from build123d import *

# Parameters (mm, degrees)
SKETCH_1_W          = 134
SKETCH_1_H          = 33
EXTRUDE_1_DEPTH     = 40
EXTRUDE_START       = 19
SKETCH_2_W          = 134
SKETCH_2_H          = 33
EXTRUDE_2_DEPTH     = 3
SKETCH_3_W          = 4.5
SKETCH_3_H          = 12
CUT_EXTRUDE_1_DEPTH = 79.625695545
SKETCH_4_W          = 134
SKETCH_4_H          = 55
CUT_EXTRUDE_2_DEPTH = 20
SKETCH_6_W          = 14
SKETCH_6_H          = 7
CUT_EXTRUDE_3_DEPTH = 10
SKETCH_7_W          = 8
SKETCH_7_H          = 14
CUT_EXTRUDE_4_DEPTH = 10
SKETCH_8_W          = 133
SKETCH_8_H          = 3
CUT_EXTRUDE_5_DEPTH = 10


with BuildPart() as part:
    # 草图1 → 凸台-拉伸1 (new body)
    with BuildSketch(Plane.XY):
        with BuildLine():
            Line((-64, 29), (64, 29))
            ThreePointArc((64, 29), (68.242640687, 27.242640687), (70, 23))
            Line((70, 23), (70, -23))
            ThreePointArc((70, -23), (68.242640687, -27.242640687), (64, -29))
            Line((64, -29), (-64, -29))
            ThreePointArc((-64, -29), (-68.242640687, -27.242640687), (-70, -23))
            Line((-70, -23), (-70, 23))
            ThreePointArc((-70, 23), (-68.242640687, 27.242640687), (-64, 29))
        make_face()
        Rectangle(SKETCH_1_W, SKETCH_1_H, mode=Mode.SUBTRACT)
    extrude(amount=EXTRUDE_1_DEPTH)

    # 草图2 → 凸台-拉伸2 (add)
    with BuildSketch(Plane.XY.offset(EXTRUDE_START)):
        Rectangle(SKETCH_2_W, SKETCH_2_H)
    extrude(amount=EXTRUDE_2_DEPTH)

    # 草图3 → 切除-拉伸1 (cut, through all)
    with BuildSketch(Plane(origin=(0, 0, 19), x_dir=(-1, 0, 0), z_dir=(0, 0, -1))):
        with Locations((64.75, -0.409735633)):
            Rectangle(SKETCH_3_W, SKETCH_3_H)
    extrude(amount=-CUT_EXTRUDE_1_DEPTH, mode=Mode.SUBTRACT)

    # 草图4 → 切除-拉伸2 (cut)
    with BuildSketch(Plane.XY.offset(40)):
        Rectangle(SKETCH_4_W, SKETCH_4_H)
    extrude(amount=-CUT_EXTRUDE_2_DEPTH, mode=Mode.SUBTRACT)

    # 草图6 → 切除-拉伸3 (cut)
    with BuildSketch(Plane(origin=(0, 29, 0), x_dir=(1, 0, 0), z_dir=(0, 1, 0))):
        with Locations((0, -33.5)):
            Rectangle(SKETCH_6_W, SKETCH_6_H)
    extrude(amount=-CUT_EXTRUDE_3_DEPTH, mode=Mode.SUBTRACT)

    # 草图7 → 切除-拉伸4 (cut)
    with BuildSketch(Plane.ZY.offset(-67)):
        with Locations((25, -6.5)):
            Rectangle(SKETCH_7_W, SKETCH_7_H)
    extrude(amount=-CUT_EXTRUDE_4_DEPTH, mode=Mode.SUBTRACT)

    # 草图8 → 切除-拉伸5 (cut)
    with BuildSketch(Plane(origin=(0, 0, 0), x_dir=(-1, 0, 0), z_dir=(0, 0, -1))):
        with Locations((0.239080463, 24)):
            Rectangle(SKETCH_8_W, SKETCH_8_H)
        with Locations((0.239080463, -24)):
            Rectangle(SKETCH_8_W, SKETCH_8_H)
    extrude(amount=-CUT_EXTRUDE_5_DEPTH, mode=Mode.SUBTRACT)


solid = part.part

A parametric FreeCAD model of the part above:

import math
import FreeCAD as App
import Part
import Sketcher

doc = App.newDocument("Part")
body = doc.addObject("PartDesign::Body", "Body")

# Sketch on XY plane
sketch1 = body.newObject("Sketcher::SketchObject", "Sketch")
sketch1.AttachmentSupport = (doc.getObject("XY_Plane"), [""])
sketch1.MapMode = "FlatFace"
sketch1.addGeometry(Part.LineSegment(App.Vector(64, 29, 0), App.Vector(-64, 29, 0)), False)
sketch1.addGeometry(Part.ArcOfCircle(Part.Circle(App.Vector(-64, 23, 0), App.Vector(0, 0, 1), 6), math.radians(90), math.radians(180)), False)
sketch1.addGeometry(Part.LineSegment(App.Vector(-70, 23, 0), App.Vector(-70, -23, 0)), False)
sketch1.addGeometry(Part.ArcOfCircle(Part.Circle(App.Vector(-64, -23, 0), App.Vector(0, 0, 1), 6), math.radians(180), math.radians(270)), False)
sketch1.addGeometry(Part.LineSegment(App.Vector(-64, -29, 0), App.Vector(64, -29, 0)), False)
sketch1.addGeometry(Part.ArcOfCircle(Part.Circle(App.Vector(64, -23, 0), App.Vector(0, 0, 1), 6), math.radians(-90), math.radians(0)), False)
sketch1.addGeometry(Part.LineSegment(App.Vector(70, -23, 0), App.Vector(70, 23, 0)), False)
sketch1.addGeometry(Part.ArcOfCircle(Part.Circle(App.Vector(64, 23, 0), App.Vector(0, 0, 1), 6), math.radians(0), math.radians(90)), False)
sketch1.addGeometry(Part.LineSegment(App.Vector(-67, -16, 0), App.Vector(-67, 16, 0)), False)
sketch1.addGeometry(Part.LineSegment(App.Vector(-67, 16, 0), App.Vector(67, 16, 0)), False)
sketch1.addGeometry(Part.LineSegment(App.Vector(67, 16, 0), App.Vector(67, -16, 0)), False)
sketch1.addGeometry(Part.LineSegment(App.Vector(67, -16, 0), App.Vector(-67, -16, 0)), False)
sketch1.addConstraint(Sketcher.Constraint("Tangent", 0, 2, 1, 1))
sketch1.addConstraint(Sketcher.Constraint("Tangent", 1, 2, 2, 1))
sketch1.addConstraint(Sketcher.Constraint("Tangent", 2, 2, 3, 1))
sketch1.addConstraint(Sketcher.Constraint("Tangent", 3, 2, 4, 1))
sketch1.addConstraint(Sketcher.Constraint("Tangent", 4, 2, 5, 1))
sketch1.addConstraint(Sketcher.Constraint("Tangent", 5, 2, 6, 1))
sketch1.addConstraint(Sketcher.Constraint("Tangent", 6, 2, 7, 1))
sketch1.addConstraint(Sketcher.Constraint("Tangent", 7, 2, 0, 1))
sketch1.addConstraint(Sketcher.Constraint("Coincident", 8, 2, 9, 1))
sketch1.addConstraint(Sketcher.Constraint("Coincident", 9, 2, 10, 1))
sketch1.addConstraint(Sketcher.Constraint("Coincident", 10, 2, 11, 1))
sketch1.addConstraint(Sketcher.Constraint("Coincident", 11, 2, 8, 1))
sketch1.addConstraint(Sketcher.Constraint("Horizontal", 0))
sketch1.addConstraint(Sketcher.Constraint("Vertical", 2))
sketch1.addConstraint(Sketcher.Constraint("Horizontal", 4))
sketch1.addConstraint(Sketcher.Constraint("Vertical", 6))
sketch1.addConstraint(Sketcher.Constraint("Vertical", 8))
sketch1.addConstraint(Sketcher.Constraint("Horizontal", 9))
sketch1.addConstraint(Sketcher.Constraint("Vertical", 10))
sketch1.addConstraint(Sketcher.Constraint("Horizontal", 11))
sketch1.addConstraint(Sketcher.Constraint("Equal", 1, 3))
sketch1.addConstraint(Sketcher.Constraint("Equal", 3, 5))
sketch1.addConstraint(Sketcher.Constraint("Equal", 5, 7))
sketch1.addConstraint(Sketcher.Constraint("Symmetric", 1, 3, 5, 3, -1, 1))
sketch1.addConstraint(Sketcher.Constraint("Symmetric", 8, 2, 10, 2, -1, 1))
sketch1.addConstraint(Sketcher.Constraint("Radius", 1, 6.0))
sketch1.addConstraint(Sketcher.Constraint("DistanceX", 0, 2, 0, 1, 128.0))
sketch1.addConstraint(Sketcher.Constraint("DistanceX", 9, 1, 9, 2, 134.0))
sketch1.addConstraint(Sketcher.Constraint("DistanceY", 2, 2, 2, 1, 46.0))
sketch1.addConstraint(Sketcher.Constraint("DistanceY", 8, 1, 8, 2, 33.0))
pad1 = body.newObject("PartDesign::Pad", "Pad")
pad1.Profile = sketch1
pad1.Length = 40

# Sketch on XY plane
sketch2 = body.newObject("Sketcher::SketchObject", "Sketch001")
sketch2.AttachmentSupport = (doc.getObject("XY_Plane"), [""])
sketch2.MapMode = "FlatFace"
sketch2.AttachmentOffset = App.Placement(App.Vector(0, 0, 19), App.Rotation())
sketch2.addGeometry(Part.LineSegment(App.Vector(-67, 16, 0), App.Vector(-67, -16, 0)), False)
sketch2.addGeometry(Part.LineSegment(App.Vector(-67, -16, 0), App.Vector(67, -16, 0)), False)
sketch2.addGeometry(Part.LineSegment(App.Vector(67, -16, 0), App.Vector(67, 16, 0)), False)
sketch2.addGeometry(Part.LineSegment(App.Vector(67, 16, 0), App.Vector(-67, 16, 0)), False)
sketch2.addConstraint(Sketcher.Constraint("Coincident", 0, 2, 1, 1))
sketch2.addConstraint(Sketcher.Constraint("Coincident", 1, 2, 2, 1))
sketch2.addConstraint(Sketcher.Constraint("Coincident", 2, 2, 3, 1))
sketch2.addConstraint(Sketcher.Constraint("Coincident", 3, 2, 0, 1))
sketch2.addConstraint(Sketcher.Constraint("Vertical", 0))
sketch2.addConstraint(Sketcher.Constraint("Horizontal", 1))
sketch2.addConstraint(Sketcher.Constraint("Vertical", 2))
sketch2.addConstraint(Sketcher.Constraint("Horizontal", 3))
sketch2.addConstraint(Sketcher.Constraint("Symmetric", 0, 2, 2, 2, -1, 1))
sketch2.addConstraint(Sketcher.Constraint("DistanceX", 1, 1, 1, 2, 134.0))
sketch2.addConstraint(Sketcher.Constraint("DistanceY", 0, 2, 0, 1, 33.0))
pad2 = body.newObject("PartDesign::Pad", "Pad001")
pad2.Profile = sketch2
pad2.Length = 3

# Sketch on XY plane
sketch3 = body.newObject("Sketcher::SketchObject", "Sketch002")
sketch3.AttachmentSupport = (doc.getObject("XY_Plane"), [""])
sketch3.MapMode = "FlatFace"
sketch3.AttachmentOffset = App.Placement(App.Vector(0, 0, 19), App.Rotation())
sketch3.addGeometry(Part.LineSegment(App.Vector(-62.5, 5.6, 0), App.Vector(-62.5, -6.4, 0)), False)
sketch3.addGeometry(Part.LineSegment(App.Vector(-62.5, -6.4, 0), App.Vector(-67, -6.4, 0)), False)
sketch3.addGeometry(Part.LineSegment(App.Vector(-67, -6.4, 0), App.Vector(-67, 5.6, 0)), False)
sketch3.addGeometry(Part.LineSegment(App.Vector(-67, 5.6, 0), App.Vector(-62.5, 5.6, 0)), False)
sketch3.addConstraint(Sketcher.Constraint("Coincident", 0, 2, 1, 1))
sketch3.addConstraint(Sketcher.Constraint("Coincident", 1, 2, 2, 1))
sketch3.addConstraint(Sketcher.Constraint("Coincident", 2, 2, 3, 1))
sketch3.addConstraint(Sketcher.Constraint("Coincident", 3, 2, 0, 1))
sketch3.addConstraint(Sketcher.Constraint("Vertical", 0))
sketch3.addConstraint(Sketcher.Constraint("Horizontal", 1))
sketch3.addConstraint(Sketcher.Constraint("Vertical", 2))
sketch3.addConstraint(Sketcher.Constraint("Horizontal", 3))
sketch3.addConstraint(Sketcher.Constraint("DistanceY", 0, 2, 0, 1, 12.0))
sketch3.addConstraint(Sketcher.Constraint("DistanceX", 1, 2, 1, 1, 4.5))
sketch3.addConstraint(Sketcher.Constraint("DistanceX", 1, 2, -1, 1, 67.0))
sketch3.addConstraint(Sketcher.Constraint("DistanceY", 0, 2, -1, 1, 6.409736))
pocket1 = body.newObject("PartDesign::Pocket", "Pocket")
pocket1.Profile = sketch3
pocket1.Type = "ThroughAll"
pocket1.Reversed = True

# Sketch on XY plane
sketch4 = body.newObject("Sketcher::SketchObject", "Sketch003")
sketch4.AttachmentSupport = (doc.getObject("XY_Plane"), [""])
sketch4.MapMode = "FlatFace"
sketch4.AttachmentOffset = App.Placement(App.Vector(0, 0, 40), App.Rotation())
sketch4.addGeometry(Part.LineSegment(App.Vector(-67, 28, 0), App.Vector(-67, -28, 0)), False)
sketch4.addGeometry(Part.LineSegment(App.Vector(-67, -28, 0), App.Vector(67, -28, 0)), False)
sketch4.addGeometry(Part.LineSegment(App.Vector(67, -28, 0), App.Vector(67, 28, 0)), False)
sketch4.addGeometry(Part.LineSegment(App.Vector(67, 28, 0), App.Vector(-67, 28, 0)), False)
sketch4.addConstraint(Sketcher.Constraint("Coincident", 0, 2, 1, 1))
sketch4.addConstraint(Sketcher.Constraint("Coincident", 1, 2, 2, 1))
sketch4.addConstraint(Sketcher.Constraint("Coincident", 2, 2, 3, 1))
sketch4.addConstraint(Sketcher.Constraint("Coincident", 3, 2, 0, 1))
sketch4.addConstraint(Sketcher.Constraint("Vertical", 0))
sketch4.addConstraint(Sketcher.Constraint("Horizontal", 1))
sketch4.addConstraint(Sketcher.Constraint("Vertical", 2))
sketch4.addConstraint(Sketcher.Constraint("Horizontal", 3))
sketch4.addConstraint(Sketcher.Constraint("Symmetric", 0, 2, 2, 2, -1, 1))
sketch4.addConstraint(Sketcher.Constraint("DistanceX", 1, 1, 1, 2, 134.0))
sketch4.addConstraint(Sketcher.Constraint("DistanceY", 0, 2, 0, 1, 55.0))
pocket2 = body.newObject("PartDesign::Pocket", "Pocket001")
pocket2.Profile = sketch4
pocket2.Length = 20

# Sketch on XZ plane
sketch5 = body.newObject("Sketcher::SketchObject", "Sketch004")
sketch5.AttachmentSupport = (doc.getObject("XZ_Plane"), [""])
sketch5.MapMode = "FlatFace"
sketch5.AttachmentOffset = App.Placement(App.Vector(0, 0, -29), App.Rotation())
sketch5.addGeometry(Part.LineSegment(App.Vector(-7, 30, 0), App.Vector(-7, 37, 0)), False)
sketch5.addGeometry(Part.LineSegment(App.Vector(-7, 37, 0), App.Vector(7, 37, 0)), False)
sketch5.addGeometry(Part.LineSegment(App.Vector(7, 37, 0), App.Vector(7, 30, 0)), False)
sketch5.addGeometry(Part.LineSegment(App.Vector(7, 30, 0), App.Vector(-7, 30, 0)), False)
sketch5.addConstraint(Sketcher.Constraint("Coincident", 0, 2, 1, 1))
sketch5.addConstraint(Sketcher.Constraint("Coincident", 1, 2, 2, 1))
sketch5.addConstraint(Sketcher.Constraint("Coincident", 2, 2, 3, 1))
sketch5.addConstraint(Sketcher.Constraint("Coincident", 3, 2, 0, 1))
sketch5.addConstraint(Sketcher.Constraint("Vertical", 0))
sketch5.addConstraint(Sketcher.Constraint("Horizontal", 1))
sketch5.addConstraint(Sketcher.Constraint("Vertical", 2))
sketch5.addConstraint(Sketcher.Constraint("Horizontal", 3))
sketch5.addConstraint(Sketcher.Constraint("DistanceX", 1, 1, 1, 2, 14.0))
sketch5.addConstraint(Sketcher.Constraint("DistanceY", 0, 1, 0, 2, 7.0))
sketch5.addConstraint(Sketcher.Constraint("DistanceX", 0, 2, -1, 1, 7.0))
sketch5.addConstraint(Sketcher.Constraint("DistanceY", -1, 1, 0, 2, 37.0))
pocket3 = body.newObject("PartDesign::Pocket", "Pocket002")
pocket3.Profile = sketch5
pocket3.Length = 10
pocket3.Reversed = True

# Sketch on YZ plane
sketch6 = body.newObject("Sketcher::SketchObject", "Sketch005")
sketch6.AttachmentSupport = (doc.getObject("YZ_Plane"), [""])
sketch6.MapMode = "FlatFace"
sketch6.AttachmentOffset = App.Placement(App.Vector(0, 0, 67), App.Rotation())
sketch6.addGeometry(Part.LineSegment(App.Vector(0, 21, 0), App.Vector(-14, 21, 0)), False)
sketch6.addGeometry(Part.LineSegment(App.Vector(-14, 21, 0), App.Vector(-14, 29, 0)), False)
sketch6.addGeometry(Part.LineSegment(App.Vector(-14, 29, 0), App.Vector(0, 29, 0)), False)
sketch6.addGeometry(Part.LineSegment(App.Vector(0, 29, 0), App.Vector(0, 21, 0)), False)
sketch6.addConstraint(Sketcher.Constraint("Coincident", 0, 2, 1, 1))
sketch6.addConstraint(Sketcher.Constraint("Coincident", 1, 2, 2, 1))
sketch6.addConstraint(Sketcher.Constraint("Coincident", 2, 2, 3, 1))
sketch6.addConstraint(Sketcher.Constraint("Coincident", 3, 2, 0, 1))
sketch6.addConstraint(Sketcher.Constraint("Horizontal", 0))
sketch6.addConstraint(Sketcher.Constraint("Vertical", 1))
sketch6.addConstraint(Sketcher.Constraint("Horizontal", 2))
sketch6.addConstraint(Sketcher.Constraint("Vertical", 3))
sketch6.addConstraint(Sketcher.Constraint("DistanceX", 0, 2, 0, 1, 14.0))
sketch6.addConstraint(Sketcher.Constraint("DistanceY", 1, 1, 1, 2, 8.0))
sketch6.addConstraint(Sketcher.Constraint("DistanceY", -1, 1, 0, 2, 21.0))
sketch6.addConstraint(Sketcher.Constraint("DistanceX", 0, 2, -1, 1, 13.5))
pocket4 = body.newObject("PartDesign::Pocket", "Pocket003")
pocket4.Profile = sketch6
pocket4.Length = 10
pocket4.Reversed = True

# Sketch on XY plane
sketch7 = body.newObject("Sketcher::SketchObject", "Sketch006")
sketch7.AttachmentSupport = (doc.getObject("XY_Plane"), [""])
sketch7.MapMode = "FlatFace"
sketch7.addGeometry(Part.LineSegment(App.Vector(66.3, 25.5, 0), App.Vector(66.3, 22.5, 0)), False)
sketch7.addGeometry(Part.LineSegment(App.Vector(66.3, 22.5, 0), App.Vector(-66.7, 22.5, 0)), False)
sketch7.addGeometry(Part.LineSegment(App.Vector(-66.7, 22.5, 0), App.Vector(-66.7, 25.5, 0)), False)
sketch7.addGeometry(Part.LineSegment(App.Vector(-66.7, 25.5, 0), App.Vector(66.3, 25.5, 0)), False)
sketch7.addGeometry(Part.LineSegment(App.Vector(66.3, -22.5, 0), App.Vector(66.3, -25.5, 0)), False)
sketch7.addGeometry(Part.LineSegment(App.Vector(66.3, -25.5, 0), App.Vector(-66.7, -25.5, 0)), False)
sketch7.addGeometry(Part.LineSegment(App.Vector(-66.7, -25.5, 0), App.Vector(-66.7, -22.5, 0)), False)
sketch7.addGeometry(Part.LineSegment(App.Vector(-66.7, -22.5, 0), App.Vector(66.3, -22.5, 0)), False)
sketch7.addConstraint(Sketcher.Constraint("Coincident", 0, 2, 1, 1))
sketch7.addConstraint(Sketcher.Constraint("Coincident", 1, 2, 2, 1))
sketch7.addConstraint(Sketcher.Constraint("Coincident", 2, 2, 3, 1))
sketch7.addConstraint(Sketcher.Constraint("Coincident", 3, 2, 0, 1))
sketch7.addConstraint(Sketcher.Constraint("Coincident", 4, 2, 5, 1))
sketch7.addConstraint(Sketcher.Constraint("Coincident", 5, 2, 6, 1))
sketch7.addConstraint(Sketcher.Constraint("Coincident", 6, 2, 7, 1))
sketch7.addConstraint(Sketcher.Constraint("Coincident", 7, 2, 4, 1))
sketch7.addConstraint(Sketcher.Constraint("Vertical", 0))
sketch7.addConstraint(Sketcher.Constraint("Horizontal", 1))
sketch7.addConstraint(Sketcher.Constraint("Vertical", 2))
sketch7.addConstraint(Sketcher.Constraint("Horizontal", 3))
sketch7.addConstraint(Sketcher.Constraint("Vertical", 4))
sketch7.addConstraint(Sketcher.Constraint("Horizontal", 5))
sketch7.addConstraint(Sketcher.Constraint("Vertical", 6))
sketch7.addConstraint(Sketcher.Constraint("Horizontal", 7))
sketch7.addConstraint(Sketcher.Constraint("Symmetric", 3, 2, 4, 2, -1))
sketch7.addConstraint(Sketcher.Constraint("Symmetric", 1, 2, 6, 2, -1))
sketch7.addConstraint(Sketcher.Constraint("DistanceX", 1, 2, 1, 1, 133.0))
sketch7.addConstraint(Sketcher.Constraint("DistanceY", 0, 2, 0, 1, 3.0))
sketch7.addConstraint(Sketcher.Constraint("DistanceY", 4, 2, 0, 2, 48.0))
sketch7.addConstraint(Sketcher.Constraint("DistanceX", -1, 1, 0, 2, 66.26092))
pocket5 = body.newObject("PartDesign::Pocket", "Pocket004")
pocket5.Profile = sketch7
pocket5.Length = 10
pocket5.Reversed = True

doc.recompute()
